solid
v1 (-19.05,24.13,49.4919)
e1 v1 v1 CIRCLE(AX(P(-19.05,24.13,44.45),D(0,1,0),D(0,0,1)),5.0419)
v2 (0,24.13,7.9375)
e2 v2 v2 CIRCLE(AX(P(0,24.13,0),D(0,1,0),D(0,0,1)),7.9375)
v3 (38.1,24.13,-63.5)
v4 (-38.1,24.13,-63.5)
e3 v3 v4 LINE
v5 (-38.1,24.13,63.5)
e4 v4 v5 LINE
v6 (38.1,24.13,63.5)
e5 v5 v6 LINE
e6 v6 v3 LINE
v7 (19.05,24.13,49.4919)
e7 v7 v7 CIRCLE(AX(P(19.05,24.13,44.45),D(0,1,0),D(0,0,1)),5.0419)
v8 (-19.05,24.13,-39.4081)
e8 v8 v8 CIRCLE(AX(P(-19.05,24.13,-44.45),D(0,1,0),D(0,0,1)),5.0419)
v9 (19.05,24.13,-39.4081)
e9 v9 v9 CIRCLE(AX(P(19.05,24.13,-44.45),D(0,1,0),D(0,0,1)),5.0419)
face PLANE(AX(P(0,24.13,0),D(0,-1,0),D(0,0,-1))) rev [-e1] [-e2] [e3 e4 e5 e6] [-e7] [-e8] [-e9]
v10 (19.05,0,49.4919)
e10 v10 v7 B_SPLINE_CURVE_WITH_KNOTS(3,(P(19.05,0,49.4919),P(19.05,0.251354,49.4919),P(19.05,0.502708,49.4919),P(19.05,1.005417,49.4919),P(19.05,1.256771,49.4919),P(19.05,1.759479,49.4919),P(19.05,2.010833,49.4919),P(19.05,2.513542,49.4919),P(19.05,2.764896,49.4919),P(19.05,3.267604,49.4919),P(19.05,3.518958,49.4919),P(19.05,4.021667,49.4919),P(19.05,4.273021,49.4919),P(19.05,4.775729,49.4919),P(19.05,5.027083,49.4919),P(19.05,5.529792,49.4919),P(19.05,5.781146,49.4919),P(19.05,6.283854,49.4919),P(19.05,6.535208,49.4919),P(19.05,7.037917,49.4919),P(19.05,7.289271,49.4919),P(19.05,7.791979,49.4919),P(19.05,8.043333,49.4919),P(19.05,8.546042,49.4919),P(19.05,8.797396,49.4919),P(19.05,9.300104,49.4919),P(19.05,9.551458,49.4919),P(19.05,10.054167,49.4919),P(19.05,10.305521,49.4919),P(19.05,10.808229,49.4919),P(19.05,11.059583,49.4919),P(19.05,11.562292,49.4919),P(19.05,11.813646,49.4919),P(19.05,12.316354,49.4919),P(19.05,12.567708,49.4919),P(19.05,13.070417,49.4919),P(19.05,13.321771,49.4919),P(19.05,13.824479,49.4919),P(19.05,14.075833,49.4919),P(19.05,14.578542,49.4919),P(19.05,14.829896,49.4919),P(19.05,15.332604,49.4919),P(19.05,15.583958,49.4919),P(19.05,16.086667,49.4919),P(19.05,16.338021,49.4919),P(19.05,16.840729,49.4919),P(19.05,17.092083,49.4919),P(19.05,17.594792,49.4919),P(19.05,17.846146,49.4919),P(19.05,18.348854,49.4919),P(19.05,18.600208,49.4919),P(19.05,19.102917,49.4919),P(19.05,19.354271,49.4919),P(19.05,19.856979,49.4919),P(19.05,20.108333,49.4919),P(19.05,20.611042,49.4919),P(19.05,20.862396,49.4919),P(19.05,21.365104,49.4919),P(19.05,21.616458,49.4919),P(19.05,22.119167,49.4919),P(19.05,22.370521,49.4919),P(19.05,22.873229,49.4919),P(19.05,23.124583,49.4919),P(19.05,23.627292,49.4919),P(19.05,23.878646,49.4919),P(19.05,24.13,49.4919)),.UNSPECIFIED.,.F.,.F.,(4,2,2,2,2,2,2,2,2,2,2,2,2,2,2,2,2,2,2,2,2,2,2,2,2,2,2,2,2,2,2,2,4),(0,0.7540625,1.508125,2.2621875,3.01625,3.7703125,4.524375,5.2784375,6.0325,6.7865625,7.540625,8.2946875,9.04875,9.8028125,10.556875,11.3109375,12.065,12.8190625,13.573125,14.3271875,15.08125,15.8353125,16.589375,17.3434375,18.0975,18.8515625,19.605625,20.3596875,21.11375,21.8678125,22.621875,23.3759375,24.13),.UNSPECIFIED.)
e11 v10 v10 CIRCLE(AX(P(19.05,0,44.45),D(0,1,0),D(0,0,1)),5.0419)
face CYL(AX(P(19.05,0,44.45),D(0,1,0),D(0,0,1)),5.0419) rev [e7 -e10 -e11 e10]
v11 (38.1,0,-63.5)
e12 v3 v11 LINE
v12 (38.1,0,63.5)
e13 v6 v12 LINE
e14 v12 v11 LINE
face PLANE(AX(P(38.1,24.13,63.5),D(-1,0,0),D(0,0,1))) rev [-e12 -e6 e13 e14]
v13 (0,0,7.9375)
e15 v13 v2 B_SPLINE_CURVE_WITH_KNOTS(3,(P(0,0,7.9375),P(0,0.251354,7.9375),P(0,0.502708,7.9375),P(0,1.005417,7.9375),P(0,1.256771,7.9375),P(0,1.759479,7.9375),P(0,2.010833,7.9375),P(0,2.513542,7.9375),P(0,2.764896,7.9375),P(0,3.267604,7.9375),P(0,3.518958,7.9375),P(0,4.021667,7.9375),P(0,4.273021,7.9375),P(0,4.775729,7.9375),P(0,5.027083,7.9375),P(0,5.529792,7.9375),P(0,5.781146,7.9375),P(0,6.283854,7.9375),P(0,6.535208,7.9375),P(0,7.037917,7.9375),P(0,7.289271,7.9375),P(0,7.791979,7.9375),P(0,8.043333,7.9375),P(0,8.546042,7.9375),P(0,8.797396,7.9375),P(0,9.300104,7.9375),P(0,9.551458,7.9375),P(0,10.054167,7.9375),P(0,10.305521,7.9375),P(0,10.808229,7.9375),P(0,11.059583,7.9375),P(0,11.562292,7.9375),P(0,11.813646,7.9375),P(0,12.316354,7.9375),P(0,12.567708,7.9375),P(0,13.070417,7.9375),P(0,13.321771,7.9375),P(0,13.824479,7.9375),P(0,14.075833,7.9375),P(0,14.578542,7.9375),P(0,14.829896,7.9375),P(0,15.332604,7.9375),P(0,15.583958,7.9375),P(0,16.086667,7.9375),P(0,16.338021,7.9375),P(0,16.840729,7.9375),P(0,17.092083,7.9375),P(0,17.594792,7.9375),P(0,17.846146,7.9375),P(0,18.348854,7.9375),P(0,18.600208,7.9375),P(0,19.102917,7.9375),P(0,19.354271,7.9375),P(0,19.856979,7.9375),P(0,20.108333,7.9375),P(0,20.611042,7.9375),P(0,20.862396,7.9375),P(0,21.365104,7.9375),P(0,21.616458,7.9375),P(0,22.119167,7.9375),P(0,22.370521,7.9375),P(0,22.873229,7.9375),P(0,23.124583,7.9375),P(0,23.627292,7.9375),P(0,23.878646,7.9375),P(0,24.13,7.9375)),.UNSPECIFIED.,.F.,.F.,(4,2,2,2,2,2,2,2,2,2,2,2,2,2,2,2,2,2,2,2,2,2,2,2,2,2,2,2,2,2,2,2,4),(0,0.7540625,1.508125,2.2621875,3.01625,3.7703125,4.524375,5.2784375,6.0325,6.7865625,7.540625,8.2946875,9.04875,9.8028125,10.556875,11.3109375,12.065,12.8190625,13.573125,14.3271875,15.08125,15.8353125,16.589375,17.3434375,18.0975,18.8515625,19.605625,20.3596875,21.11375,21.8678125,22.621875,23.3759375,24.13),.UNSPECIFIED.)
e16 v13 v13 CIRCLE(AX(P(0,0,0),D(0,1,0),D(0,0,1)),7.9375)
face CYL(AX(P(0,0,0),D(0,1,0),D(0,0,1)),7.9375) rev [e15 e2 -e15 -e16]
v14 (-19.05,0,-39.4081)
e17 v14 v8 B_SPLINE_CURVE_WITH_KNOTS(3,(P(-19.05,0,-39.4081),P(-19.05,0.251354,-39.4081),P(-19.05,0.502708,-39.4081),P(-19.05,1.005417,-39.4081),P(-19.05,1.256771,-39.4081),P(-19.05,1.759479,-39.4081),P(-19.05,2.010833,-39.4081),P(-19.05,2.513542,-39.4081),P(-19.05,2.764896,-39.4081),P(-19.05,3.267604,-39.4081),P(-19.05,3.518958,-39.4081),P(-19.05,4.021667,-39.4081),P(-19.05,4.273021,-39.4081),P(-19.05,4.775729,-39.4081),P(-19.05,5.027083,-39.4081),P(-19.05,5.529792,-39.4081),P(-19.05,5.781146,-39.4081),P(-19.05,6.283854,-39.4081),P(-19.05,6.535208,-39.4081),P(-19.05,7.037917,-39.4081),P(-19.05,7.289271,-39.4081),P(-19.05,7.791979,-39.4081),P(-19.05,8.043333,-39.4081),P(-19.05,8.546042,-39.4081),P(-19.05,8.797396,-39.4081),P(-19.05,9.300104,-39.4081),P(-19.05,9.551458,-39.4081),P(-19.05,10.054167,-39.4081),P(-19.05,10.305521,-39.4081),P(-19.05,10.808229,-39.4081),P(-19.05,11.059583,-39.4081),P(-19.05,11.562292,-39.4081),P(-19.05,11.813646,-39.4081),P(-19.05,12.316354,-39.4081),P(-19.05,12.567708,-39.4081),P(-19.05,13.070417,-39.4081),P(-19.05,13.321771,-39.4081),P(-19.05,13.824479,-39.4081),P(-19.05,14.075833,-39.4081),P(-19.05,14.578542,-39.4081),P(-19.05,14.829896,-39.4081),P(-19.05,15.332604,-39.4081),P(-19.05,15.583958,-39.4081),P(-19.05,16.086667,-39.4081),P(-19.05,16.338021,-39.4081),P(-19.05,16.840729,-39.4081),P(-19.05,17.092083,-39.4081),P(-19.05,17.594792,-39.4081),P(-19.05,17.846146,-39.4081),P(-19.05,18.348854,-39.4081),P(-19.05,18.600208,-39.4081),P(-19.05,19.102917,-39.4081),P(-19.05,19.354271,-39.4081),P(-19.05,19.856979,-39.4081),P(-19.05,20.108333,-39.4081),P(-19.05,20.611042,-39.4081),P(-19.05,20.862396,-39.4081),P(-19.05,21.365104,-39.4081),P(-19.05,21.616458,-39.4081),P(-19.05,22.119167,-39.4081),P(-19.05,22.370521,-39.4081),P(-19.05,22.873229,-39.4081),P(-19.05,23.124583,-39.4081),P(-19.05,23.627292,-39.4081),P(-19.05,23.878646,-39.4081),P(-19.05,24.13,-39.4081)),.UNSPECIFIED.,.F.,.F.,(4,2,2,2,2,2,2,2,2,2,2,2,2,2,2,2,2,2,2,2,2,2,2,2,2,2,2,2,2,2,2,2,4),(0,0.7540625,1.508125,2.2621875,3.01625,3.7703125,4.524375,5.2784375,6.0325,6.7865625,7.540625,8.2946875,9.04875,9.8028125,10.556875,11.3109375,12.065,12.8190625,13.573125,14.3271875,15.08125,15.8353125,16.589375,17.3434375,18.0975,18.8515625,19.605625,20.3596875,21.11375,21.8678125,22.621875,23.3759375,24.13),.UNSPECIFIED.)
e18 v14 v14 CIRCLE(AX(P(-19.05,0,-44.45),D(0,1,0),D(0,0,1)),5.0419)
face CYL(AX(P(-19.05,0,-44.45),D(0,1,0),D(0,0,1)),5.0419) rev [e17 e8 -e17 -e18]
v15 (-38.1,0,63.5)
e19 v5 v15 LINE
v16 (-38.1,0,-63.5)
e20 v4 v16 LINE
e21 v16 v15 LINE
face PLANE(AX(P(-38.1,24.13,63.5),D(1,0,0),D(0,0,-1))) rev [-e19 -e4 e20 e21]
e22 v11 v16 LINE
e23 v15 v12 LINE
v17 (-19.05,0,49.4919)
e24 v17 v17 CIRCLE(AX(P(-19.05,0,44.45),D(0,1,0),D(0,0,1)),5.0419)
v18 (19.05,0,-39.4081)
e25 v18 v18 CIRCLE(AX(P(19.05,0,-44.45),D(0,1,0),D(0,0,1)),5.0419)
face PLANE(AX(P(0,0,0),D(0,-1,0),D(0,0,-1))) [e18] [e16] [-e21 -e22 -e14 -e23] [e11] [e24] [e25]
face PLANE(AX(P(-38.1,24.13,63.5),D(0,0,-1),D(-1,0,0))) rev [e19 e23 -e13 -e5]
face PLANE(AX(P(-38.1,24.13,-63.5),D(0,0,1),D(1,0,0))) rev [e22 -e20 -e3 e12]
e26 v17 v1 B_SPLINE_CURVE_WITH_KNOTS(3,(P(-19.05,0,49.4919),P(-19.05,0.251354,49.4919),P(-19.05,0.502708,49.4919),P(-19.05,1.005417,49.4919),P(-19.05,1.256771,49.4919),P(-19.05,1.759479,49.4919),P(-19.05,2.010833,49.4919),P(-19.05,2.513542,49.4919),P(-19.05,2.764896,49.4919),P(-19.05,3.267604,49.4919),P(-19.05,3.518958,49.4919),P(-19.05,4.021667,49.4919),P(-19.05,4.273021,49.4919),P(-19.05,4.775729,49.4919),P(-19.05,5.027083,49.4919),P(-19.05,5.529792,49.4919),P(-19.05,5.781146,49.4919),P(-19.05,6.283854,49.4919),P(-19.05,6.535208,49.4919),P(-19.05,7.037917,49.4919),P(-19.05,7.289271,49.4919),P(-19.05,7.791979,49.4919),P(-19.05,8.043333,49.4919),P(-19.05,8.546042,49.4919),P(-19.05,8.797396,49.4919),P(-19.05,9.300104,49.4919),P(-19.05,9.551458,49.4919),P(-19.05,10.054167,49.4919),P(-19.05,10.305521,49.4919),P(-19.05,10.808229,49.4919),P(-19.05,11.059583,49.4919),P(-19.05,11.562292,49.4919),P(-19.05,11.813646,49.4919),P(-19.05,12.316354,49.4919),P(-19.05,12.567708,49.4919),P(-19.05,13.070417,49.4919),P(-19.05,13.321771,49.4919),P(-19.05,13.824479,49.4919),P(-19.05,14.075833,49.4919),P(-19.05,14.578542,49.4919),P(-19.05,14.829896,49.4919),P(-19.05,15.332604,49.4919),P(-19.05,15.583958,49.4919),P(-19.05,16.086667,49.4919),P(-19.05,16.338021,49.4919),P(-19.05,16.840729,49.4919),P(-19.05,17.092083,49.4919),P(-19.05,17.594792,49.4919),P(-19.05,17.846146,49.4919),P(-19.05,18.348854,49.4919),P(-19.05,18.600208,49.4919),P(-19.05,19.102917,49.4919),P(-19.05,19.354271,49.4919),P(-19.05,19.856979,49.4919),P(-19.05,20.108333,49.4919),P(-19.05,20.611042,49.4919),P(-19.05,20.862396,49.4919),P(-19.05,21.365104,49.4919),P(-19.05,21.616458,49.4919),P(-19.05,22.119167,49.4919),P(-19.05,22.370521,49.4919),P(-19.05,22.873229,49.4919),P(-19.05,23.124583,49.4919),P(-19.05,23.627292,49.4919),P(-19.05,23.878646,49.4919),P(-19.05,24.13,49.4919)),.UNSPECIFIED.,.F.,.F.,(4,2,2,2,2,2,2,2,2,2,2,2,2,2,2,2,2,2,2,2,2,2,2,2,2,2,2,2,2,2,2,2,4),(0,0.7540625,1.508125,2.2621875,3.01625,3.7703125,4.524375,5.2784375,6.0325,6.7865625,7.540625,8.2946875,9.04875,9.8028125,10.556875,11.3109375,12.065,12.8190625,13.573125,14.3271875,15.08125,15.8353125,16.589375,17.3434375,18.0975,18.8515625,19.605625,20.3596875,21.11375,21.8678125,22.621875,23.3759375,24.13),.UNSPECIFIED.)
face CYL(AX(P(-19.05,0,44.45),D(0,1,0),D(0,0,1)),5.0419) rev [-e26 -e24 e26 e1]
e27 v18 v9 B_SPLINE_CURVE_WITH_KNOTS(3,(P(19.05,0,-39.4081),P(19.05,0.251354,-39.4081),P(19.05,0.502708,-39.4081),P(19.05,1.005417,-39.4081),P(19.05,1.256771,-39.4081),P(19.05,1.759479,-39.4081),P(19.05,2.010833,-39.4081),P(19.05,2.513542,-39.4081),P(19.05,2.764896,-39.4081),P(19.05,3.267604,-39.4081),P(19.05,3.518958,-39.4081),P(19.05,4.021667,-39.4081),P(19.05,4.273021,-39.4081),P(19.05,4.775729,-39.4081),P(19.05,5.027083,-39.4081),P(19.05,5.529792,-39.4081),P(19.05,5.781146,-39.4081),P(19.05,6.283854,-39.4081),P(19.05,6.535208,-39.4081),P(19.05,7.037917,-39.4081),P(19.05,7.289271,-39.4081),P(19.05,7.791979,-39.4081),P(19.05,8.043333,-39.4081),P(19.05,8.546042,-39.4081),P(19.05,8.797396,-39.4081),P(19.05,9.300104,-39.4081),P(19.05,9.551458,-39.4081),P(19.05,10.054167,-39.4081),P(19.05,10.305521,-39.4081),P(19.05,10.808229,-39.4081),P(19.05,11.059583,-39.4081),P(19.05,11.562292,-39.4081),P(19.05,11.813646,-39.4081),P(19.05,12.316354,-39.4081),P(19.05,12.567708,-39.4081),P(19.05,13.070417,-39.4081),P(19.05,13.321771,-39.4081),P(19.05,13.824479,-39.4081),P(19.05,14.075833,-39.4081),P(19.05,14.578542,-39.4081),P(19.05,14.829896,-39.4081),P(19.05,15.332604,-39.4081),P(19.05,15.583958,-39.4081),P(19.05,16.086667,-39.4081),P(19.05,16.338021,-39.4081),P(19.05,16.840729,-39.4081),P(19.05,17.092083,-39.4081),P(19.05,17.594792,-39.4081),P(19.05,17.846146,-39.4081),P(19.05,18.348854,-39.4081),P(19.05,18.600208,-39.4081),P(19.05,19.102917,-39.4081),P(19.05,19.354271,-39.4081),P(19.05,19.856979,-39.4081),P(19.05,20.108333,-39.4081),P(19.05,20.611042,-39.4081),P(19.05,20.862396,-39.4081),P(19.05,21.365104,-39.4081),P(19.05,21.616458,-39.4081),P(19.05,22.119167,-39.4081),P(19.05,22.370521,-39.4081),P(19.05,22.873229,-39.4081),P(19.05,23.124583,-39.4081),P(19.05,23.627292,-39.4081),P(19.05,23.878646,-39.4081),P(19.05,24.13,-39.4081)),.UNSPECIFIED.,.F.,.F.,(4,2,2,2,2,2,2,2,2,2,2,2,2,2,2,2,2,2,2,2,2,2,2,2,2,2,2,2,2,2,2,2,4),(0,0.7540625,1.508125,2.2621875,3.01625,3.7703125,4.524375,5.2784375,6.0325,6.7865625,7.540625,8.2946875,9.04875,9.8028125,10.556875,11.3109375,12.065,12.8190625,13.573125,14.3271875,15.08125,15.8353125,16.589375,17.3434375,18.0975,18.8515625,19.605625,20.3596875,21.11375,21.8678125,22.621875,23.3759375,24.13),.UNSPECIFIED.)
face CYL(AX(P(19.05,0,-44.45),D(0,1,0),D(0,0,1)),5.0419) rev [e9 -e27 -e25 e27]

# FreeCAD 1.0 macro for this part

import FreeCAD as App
import Part
import Sketcher
from FreeCAD import Vector
Q = App.Units.Quantity


def add_polygon(sketch, points):
    """Adds a closed chain of lines whose ends are joined by coincident constraints."""
    first, n = sketch.GeometryCount, len(points)
    for a, b in zip(points, points[1:] + points[:1]):
        sketch.addGeometry(Part.LineSegment(App.Vector(*a, 0), App.Vector(*b, 0)), False)
    for i in range(n):
        sketch.addConstraint(Sketcher.Constraint("Coincident", first + i, 2, first + (i + 1) % n, 1))

doc = App.newDocument("Part")
body = doc.addObject("PartDesign::Body", "Body")

# Sketch on XZ plane
sketch1 = body.newObject("Sketcher::SketchObject", "Sketch")
sketch1.AttachmentSupport = (doc.getObject("XZ_Plane"), [""])
sketch1.MapMode = "FlatFace"
add_polygon(sketch1, [(-38.1, -63.5), (-38.1, 63.5), (38.1, 63.5), (38.1, -63.5)])  # lines 0-3
sketch1.addConstraint(Sketcher.Constraint("Vertical", 0))
sketch1.addConstraint(Sketcher.Constraint("Horizontal", 1))
sketch1.addConstraint(Sketcher.Constraint("Vertical", 2))
sketch1.addConstraint(Sketcher.Constraint("Horizontal", 3))
sketch1.addConstraint(Sketcher.Constraint("Symmetric", 0, 2, 2, 2, -1, 1))
sketch1.addConstraint(Sketcher.Constraint("DistanceX", 1, 1, 1, 2, Q("3 in")))
sketch1.addConstraint(Sketcher.Constraint("DistanceY", 0, 1, 0, 2, Q("5 in")))
pad1 = body.newObject("PartDesign::Pad", "Pad")
pad1.Profile = sketch1
pad1.Length = Q("0.95 in")
pad1.Reversed = True

# Sketch on XZ plane
sketch2 = body.newObject("Sketcher::SketchObject", "Sketch001")
sketch2.AttachmentSupport = (doc.getObject("XZ_Plane"), [""])
sketch2.MapMode = "FlatFace"
sketch2.AttachmentOffset = App.Placement(Vector(0, 0, -0.95 * 25.4), App.Rotation())
sketch2.addGeometry(Part.Circle(Vector(0, 0, 0), Vector(0, 0, 1), 7.9375), False)
sketch2.addConstraint(Sketcher.Constraint("Coincident", 0, 3, -1, 1))
sketch2.addConstraint(Sketcher.Constraint("Diameter", 0, Q("0.625 in")))
pocket1 = body.newObject("PartDesign::Pocket", "Pocket")
pocket1.Profile = sketch2
pocket1.Type = "ThroughAll"
pocket1.Reversed = True

# Sketch on XZ plane
sketch3 = body.newObject("Sketcher::SketchObject", "Sketch002")
sketch3.AttachmentSupport = (doc.getObject("XZ_Plane"), [""])
sketch3.MapMode = "FlatFace"
sketch3.AttachmentOffset = App.Placement(Vector(0, 0, -0.95 * 25.4), App.Rotation())
sketch3.addGeometry(Part.Circle(Vector(-19.05, -44.45, 0), Vector(0, 0, 1), 5.0419), False)
sketch3.addGeometry(Part.Circle(Vector(19.05, -44.45, 0), Vector(0, 0, 1), 5.0419), False)
sketch3.addGeometry(Part.Circle(Vector(19.05, 44.45, 0), Vector(0, 0, 1), 5.0419), False)
sketch3.addGeometry(Part.Circle(Vector(-19.05, 44.45, 0), Vector(0, 0, 1), 5.0419), False)
sketch3.addConstraint(Sketcher.Constraint("Equal", 0, 1))
sketch3.addConstraint(Sketcher.Constraint("Equal", 1, 2))
sketch3.addConstraint(Sketcher.Constraint("Equal", 2, 3))
sketch3.addConstraint(Sketcher.Constraint("Symmetric", 0, 3, 2, 3, -1, 1))
sketch3.addConstraint(Sketcher.Constraint("Symmetric", 1, 3, 3, 3, -1, 1))
sketch3.addConstraint(Sketcher.Constraint("Symmetric", 0, 3, 1, 3, -2))
sketch3.addConstraint(Sketcher.Constraint("Diameter", 0, Q("0.397 in")))
sketch3.addConstraint(Sketcher.Constraint("DistanceX", 0, 3, 1, 3, Q("1.5 in")))
sketch3.addConstraint(Sketcher.Constraint("DistanceY", 1, 3, 2, 3, Q("3.5 in")))
pocket2 = body.newObject("PartDesign::Pocket", "Pocket001")
pocket2.Profile = sketch3
pocket2.Type = "ThroughAll"
pocket2.Reversed = True

doc.recompute()
